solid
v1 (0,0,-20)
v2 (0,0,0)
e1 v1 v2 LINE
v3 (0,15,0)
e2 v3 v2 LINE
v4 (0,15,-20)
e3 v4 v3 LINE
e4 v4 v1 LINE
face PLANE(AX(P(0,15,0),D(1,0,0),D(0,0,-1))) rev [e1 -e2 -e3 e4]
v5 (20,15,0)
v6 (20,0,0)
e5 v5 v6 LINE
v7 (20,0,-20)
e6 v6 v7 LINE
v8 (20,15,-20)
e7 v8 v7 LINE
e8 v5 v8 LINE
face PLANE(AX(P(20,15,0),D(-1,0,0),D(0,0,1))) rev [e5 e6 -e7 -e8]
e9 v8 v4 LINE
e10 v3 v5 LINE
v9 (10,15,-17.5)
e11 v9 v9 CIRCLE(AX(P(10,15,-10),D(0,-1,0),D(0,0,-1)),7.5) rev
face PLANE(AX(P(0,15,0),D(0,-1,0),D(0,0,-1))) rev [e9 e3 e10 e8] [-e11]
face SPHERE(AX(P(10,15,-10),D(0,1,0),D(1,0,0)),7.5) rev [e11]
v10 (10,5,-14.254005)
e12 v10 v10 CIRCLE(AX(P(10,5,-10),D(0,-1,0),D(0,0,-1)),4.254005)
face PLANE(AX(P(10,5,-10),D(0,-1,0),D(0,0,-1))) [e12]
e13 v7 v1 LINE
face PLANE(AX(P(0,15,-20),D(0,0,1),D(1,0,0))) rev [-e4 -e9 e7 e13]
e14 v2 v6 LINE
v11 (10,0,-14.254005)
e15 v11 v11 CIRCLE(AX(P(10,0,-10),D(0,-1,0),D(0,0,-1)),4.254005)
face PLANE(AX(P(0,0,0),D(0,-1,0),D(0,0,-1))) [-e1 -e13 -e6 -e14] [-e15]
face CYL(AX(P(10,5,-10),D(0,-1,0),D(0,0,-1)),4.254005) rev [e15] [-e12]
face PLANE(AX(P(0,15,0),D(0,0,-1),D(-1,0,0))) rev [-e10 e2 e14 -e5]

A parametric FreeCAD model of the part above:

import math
import FreeCAD as App
import Part
import Sketcher
Q = App.Units.Quantity

doc = App.newDocument("Part")
body = doc.addObject("PartDesign::Body", "Body")

sketch1 = body.newObject("Sketcher::SketchObject", "Sketch")
sketch1.AttachmentSupport = (doc.getObject("XZ_Plane"), [""])
sketch1.MapMode = "FlatFace"
sketch1.addGeometry([
    Part.LineSegment(App.Vector(0, -20, 0), App.Vector(0, 0, 0)),
    Part.LineSegment(App.Vector(0, 0, 0), App.Vector(20, 0, 0)),
    Part.LineSegment(App.Vector(20, 0, 0), App.Vector(20, -20, 0)),
    Part.LineSegment(App.Vector(20, -20, 0), App.Vector(0, -20, 0)),
], False)
sketch1.addConstraint([
    Sketcher.Constraint("Coincident", 0, 2, 1, 1),
    Sketcher.Constraint("Coincident", 1, 2, 2, 1),
    Sketcher.Constraint("Coincident", 2, 2, 3, 1),
    Sketcher.Constraint("Coincident", 3, 2, 0, 1),
    Sketcher.Constraint("Vertical", 0),
    Sketcher.Constraint("Horizontal", 1),
    Sketcher.Constraint("Vertical", 2),
    Sketcher.Constraint("Horizontal", 3),
    Sketcher.Constraint("Coincident", 0, 2, -1, 1),
    Sketcher.Constraint("Equal", 3, 0),
    Sketcher.Constraint("DistanceX", 1, 1, 1, 2, Q("20 mm")),
])
pad1 = body.newObject("PartDesign::Pad", "Pad")
pad1.Profile = sketch1
pad1.Length = 15
pad1.Reversed = True

sketch2 = body.newObject("Sketcher::SketchObject", "Sketch001")
sketch2.AttachmentSupport = (doc.getObject("XY_Plane"), [""])
sketch2.MapMode = "FlatFace"
sketch2.AttachmentOffset = App.Placement(App.Vector(0, 0, -10), App.Rotation())
sketch2.addGeometry([
    Part.LineSegment(App.Vector(10, 22.5, 0), App.Vector(10, 7.5, 0)),
    Part.ArcOfCircle(Part.Circle(App.Vector(10, 15, 0), App.Vector(0, 0, 1), 7.5), math.radians(-90), math.radians(90)),
], False)
sketch2.addGeometry(Part.LineSegment(App.Vector(10, 22.5, 0), App.Vector(10, 7.5, 0)), True)
sketch2.addConstraint([
    Sketcher.Constraint("Coincident", 0, 1, 1, 2),
    Sketcher.Constraint("Coincident", 1, 1, 0, 2),
    Sketcher.Constraint("Vertical", 0),
    Sketcher.Constraint("Vertical", 2),
    Sketcher.Constraint("Coincident", 2, 1, 0, 1),
    Sketcher.Constraint("Vertical", 1, 3, 0, 1),
    Sketcher.Constraint("Equal", 0, 2),
    Sketcher.Constraint("Radius", 1, Q("7.5 mm")),
    Sketcher.Constraint("DistanceX", -1, 1, 1, 3, Q("10 mm")),
    Sketcher.Constraint("DistanceY", -1, 1, 1, 3, Q("15 mm")),
])
groove = body.newObject("PartDesign::Groove", "Groove")
groove.Profile = sketch2
groove.ReferenceAxis = (sketch2, ["Axis0"])
groove.Angle = 360

sketch3 = body.newObject("Sketcher::SketchObject", "Sketch002")
sketch3.AttachmentSupport = (doc.getObject("XZ_Plane"), [""])
sketch3.MapMode = "FlatFace"
sketch3.addGeometry(Part.Circle(App.Vector(10, -10, 0), App.Vector(0, 0, 1), 4.254005), False)
sketch3.addConstraint([
    Sketcher.Constraint("DistanceX", -1, 1, 0, 3, Q("10 mm")),
    Sketcher.Constraint("DistanceY", 0, 3, -1, 1, Q("10 mm")),
    Sketcher.Constraint("Diameter", 0, Q("8.508009 mm")),
])
pocket1 = body.newObject("PartDesign::Pocket", "Pocket")
pocket1.Profile = sketch3
pocket1.Length = 5

doc.recompute()
